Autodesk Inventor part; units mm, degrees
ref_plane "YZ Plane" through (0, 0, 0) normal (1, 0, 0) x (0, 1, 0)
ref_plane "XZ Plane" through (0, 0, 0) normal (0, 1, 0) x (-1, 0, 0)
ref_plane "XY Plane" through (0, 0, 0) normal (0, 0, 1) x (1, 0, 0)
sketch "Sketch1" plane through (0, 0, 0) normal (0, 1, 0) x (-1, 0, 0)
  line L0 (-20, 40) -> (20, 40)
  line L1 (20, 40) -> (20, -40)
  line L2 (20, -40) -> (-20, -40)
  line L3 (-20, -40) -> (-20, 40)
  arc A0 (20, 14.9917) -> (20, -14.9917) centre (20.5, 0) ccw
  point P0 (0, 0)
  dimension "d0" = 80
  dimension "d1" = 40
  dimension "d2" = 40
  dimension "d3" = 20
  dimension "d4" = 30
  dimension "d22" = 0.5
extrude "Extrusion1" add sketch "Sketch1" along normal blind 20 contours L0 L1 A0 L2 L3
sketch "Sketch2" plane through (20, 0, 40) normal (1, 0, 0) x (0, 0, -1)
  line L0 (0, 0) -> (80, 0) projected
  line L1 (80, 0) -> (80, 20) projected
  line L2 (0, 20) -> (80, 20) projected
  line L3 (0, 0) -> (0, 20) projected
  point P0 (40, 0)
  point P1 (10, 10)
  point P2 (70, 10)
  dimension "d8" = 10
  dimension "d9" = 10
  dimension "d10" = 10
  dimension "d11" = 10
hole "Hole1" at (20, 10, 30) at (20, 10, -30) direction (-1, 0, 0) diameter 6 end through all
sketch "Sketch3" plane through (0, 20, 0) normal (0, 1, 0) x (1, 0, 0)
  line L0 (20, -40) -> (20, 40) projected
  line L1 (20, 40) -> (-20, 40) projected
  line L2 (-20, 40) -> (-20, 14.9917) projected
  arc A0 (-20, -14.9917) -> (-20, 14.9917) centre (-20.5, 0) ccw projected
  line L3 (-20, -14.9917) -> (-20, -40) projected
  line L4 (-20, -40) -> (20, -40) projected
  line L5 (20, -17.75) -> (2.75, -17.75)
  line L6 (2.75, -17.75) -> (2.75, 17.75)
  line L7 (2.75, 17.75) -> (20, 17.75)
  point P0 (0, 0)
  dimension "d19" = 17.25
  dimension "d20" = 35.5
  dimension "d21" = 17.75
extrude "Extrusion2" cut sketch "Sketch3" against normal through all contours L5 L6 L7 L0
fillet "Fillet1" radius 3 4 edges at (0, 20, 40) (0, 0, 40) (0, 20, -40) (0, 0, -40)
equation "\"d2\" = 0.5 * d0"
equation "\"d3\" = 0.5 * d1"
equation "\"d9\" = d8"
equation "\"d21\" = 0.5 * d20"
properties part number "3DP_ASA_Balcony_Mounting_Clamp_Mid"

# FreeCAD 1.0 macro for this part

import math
import FreeCAD as App
import Part
import Sketcher
from FreeCAD import Vector
Q = App.Units.Quantity


def edges_at(feature, points):
    """Names of the edges that pass closest to the given points."""
    edges = feature.Shape.Edges
    near = lambda p: min(range(len(edges)), key=lambda i: edges[i].distToShape(Part.Vertex(*p))[0])
    return sorted({f"Edge{near(p) + 1}" for p in points})

doc = App.newDocument("Part")
body = doc.addObject("PartDesign::Body", "Body")

sketch1 = doc.addObject("Sketcher::SketchObject", "Sketch")
body.addObject(sketch1)
sketch1.AttachmentSupport = (doc.XZ_Plane, [""])
sketch1.MapMode = "FlatFace"
sketch1.addGeometry(Part.LineSegment(Vector(-20, 40, 0), Vector(20, 40, 0)), False)
sketch1.addGeometry(Part.LineSegment(Vector(20, 40, 0), Vector(20, -40, 0)), False)
sketch1.addGeometry(Part.LineSegment(Vector(20, -40, 0), Vector(-20, -40, 0)), False)
sketch1.addGeometry(Part.LineSegment(Vector(-20, -40, 0), Vector(-20, -15, 0)), False)
sketch1.addGeometry(Part.ArcOfCircle(Part.Circle(Vector(-20, 0, 0), Vector(0, 0, 1), 15), math.radians(-88), math.radians(88)), False)
sketch1.addGeometry(Part.LineSegment(Vector(-20, 15, 0), Vector(-20, 40, 0)), False)
sketch1.addConstraint(Sketcher.Constraint("Coincident", 0, 2, 1, 1))
sketch1.addConstraint(Sketcher.Constraint("Coincident", 1, 2, 2, 1))
sketch1.addConstraint(Sketcher.Constraint("Coincident", 2, 2, 3, 1))
sketch1.addConstraint(Sketcher.Constraint("Coincident", 3, 2, 4, 1))
sketch1.addConstraint(Sketcher.Constraint("Coincident", 4, 2, 5, 1))
sketch1.addConstraint(Sketcher.Constraint("Coincident", 5, 2, 0, 1))
sketch1.addConstraint(Sketcher.Constraint("Horizontal", 0))
sketch1.addConstraint(Sketcher.Constraint("Vertical", 1))
sketch1.addConstraint(Sketcher.Constraint("Horizontal", 2))
sketch1.addConstraint(Sketcher.Constraint("Vertical", 3))
sketch1.addConstraint(Sketcher.Constraint("Vertical", 5))
sketch1.addConstraint(Sketcher.Constraint("Symmetric", 0, 2, 2, 2, -1, 1))
sketch1.addConstraint(Sketcher.Constraint("Symmetric", 3, 2, 4, 2, -1))
sketch1.addConstraint(Sketcher.Constraint("Radius", 4, Q("15 mm")))
sketch1.addConstraint(Sketcher.Constraint("DistanceX", 0, 1, 0, 2, Q("40 mm")))
sketch1.addConstraint(Sketcher.Constraint("DistanceY", 1, 2, 1, 1, Q("80 mm")))
sketch1.addConstraint(Sketcher.Constraint("DistanceX", 4, 3, 2, 2, Q("0.5 mm")))
pad1 = doc.addObject("PartDesign::Pad", "Pad")
body.addObject(pad1)
pad1.Profile = sketch1
pad1.Length = 20
pad1.Reversed = True

sketch2 = doc.addObject("Sketcher::SketchObject", "Sketch001")
body.addObject(sketch2)
sketch2.AttachmentSupport = (doc.YZ_Plane, [""])
sketch2.MapMode = "FlatFace"
sketch2.AttachmentOffset = App.Placement(Vector(0, 0, 20), App.Rotation())
sketch2.addGeometry(Part.Circle(Vector(10, 30, 0), Vector(0, 0, 1), 3), False)
sketch2.addGeometry(Part.Circle(Vector(10, -30, 0), Vector(0, 0, 1), 3), False)
sketch2.addConstraint(Sketcher.Constraint("Equal", 0, 1))
sketch2.addConstraint(Sketcher.Constraint("Symmetric", 0, 3, 1, 3, -1))
sketch2.addConstraint(Sketcher.Constraint("Diameter", 0, Q("6 mm")))
sketch2.addConstraint(Sketcher.Constraint("DistanceX", -1, 1, 0, 3, Q("10 mm")))
sketch2.addConstraint(Sketcher.Constraint("DistanceY", -1, 1, 0, 3, Q("30 mm")))
doc.recompute()
hole = doc.addObject("PartDesign::Hole", "Hole")
body.addObject(hole)
hole.Profile = sketch2
hole.ThreadType = "None"
hole.Diameter = 6
hole.DepthType = "ThroughAll"

sketch3 = doc.addObject("Sketcher::SketchObject", "Sketch002")
body.addObject(sketch3)
sketch3.AttachmentSupport = (doc.XZ_Plane, [""])
sketch3.MapMode = "FlatFace"
sketch3.AttachmentOffset = App.Placement(Vector(0, 0, -20), App.Rotation())
sketch3.addGeometry(Part.LineSegment(Vector(3, 18, 0), Vector(20, 18, 0)), False)
sketch3.addGeometry(Part.LineSegment(Vector(20, 18, 0), Vector(20, -18, 0)), False)
sketch3.addGeometry(Part.LineSegment(Vector(20, -18, 0), Vector(3, -18, 0)), False)
sketch3.addGeometry(Part.LineSegment(Vector(3, -18, 0), Vector(3, 18, 0)), False)
sketch3.addConstraint(Sketcher.Constraint("Coincident", 0, 2, 1, 1))
sketch3.addConstraint(Sketcher.Constraint("Coincident", 1, 2, 2, 1))
sketch3.addConstraint(Sketcher.Constraint("Coincident", 2, 2, 3, 1))
sketch3.addConstraint(Sketcher.Constraint("Coincident", 3, 2, 0, 1))
sketch3.addConstraint(Sketcher.Constraint("Horizontal", 0))
sketch3.addConstraint(Sketcher.Constraint("Vertical", 1))
sketch3.addConstraint(Sketcher.Constraint("Horizontal", 2))
sketch3.addConstraint(Sketcher.Constraint("Vertical", 3))
sketch3.addConstraint(Sketcher.Constraint("DistanceY", 1, 2, 1, 1, Q("35.5 mm")))
sketch3.addConstraint(Sketcher.Constraint("DistanceX", 0, 1, 0, 2, Q("17.25 mm")))
sketch3.addConstraint(Sketcher.Constraint("DistanceY", -1, 1, 0, 2, Q("17.75 mm")))
sketch3.addConstraint(Sketcher.Constraint("DistanceX", -1, 1, 0, 2, Q("20 mm")))
pocket1 = doc.addObject("PartDesign::Pocket", "Pocket")
body.addObject(pocket1)
pocket1.Profile = sketch3
pocket1.Type = "ThroughAll"
pocket1.Reversed = True
doc.recompute()

fillet = doc.addObject("PartDesign::Fillet", "Fillet")
body.addObject(fillet)
fillet.Base = (pocket1, edges_at(pocket1, [
    (0, 20, 40),
    (0, 0, 40),
    (0, 20, -40),
    (0, 0, -40),
]))
fillet.Radius = 3

doc.recompute()
